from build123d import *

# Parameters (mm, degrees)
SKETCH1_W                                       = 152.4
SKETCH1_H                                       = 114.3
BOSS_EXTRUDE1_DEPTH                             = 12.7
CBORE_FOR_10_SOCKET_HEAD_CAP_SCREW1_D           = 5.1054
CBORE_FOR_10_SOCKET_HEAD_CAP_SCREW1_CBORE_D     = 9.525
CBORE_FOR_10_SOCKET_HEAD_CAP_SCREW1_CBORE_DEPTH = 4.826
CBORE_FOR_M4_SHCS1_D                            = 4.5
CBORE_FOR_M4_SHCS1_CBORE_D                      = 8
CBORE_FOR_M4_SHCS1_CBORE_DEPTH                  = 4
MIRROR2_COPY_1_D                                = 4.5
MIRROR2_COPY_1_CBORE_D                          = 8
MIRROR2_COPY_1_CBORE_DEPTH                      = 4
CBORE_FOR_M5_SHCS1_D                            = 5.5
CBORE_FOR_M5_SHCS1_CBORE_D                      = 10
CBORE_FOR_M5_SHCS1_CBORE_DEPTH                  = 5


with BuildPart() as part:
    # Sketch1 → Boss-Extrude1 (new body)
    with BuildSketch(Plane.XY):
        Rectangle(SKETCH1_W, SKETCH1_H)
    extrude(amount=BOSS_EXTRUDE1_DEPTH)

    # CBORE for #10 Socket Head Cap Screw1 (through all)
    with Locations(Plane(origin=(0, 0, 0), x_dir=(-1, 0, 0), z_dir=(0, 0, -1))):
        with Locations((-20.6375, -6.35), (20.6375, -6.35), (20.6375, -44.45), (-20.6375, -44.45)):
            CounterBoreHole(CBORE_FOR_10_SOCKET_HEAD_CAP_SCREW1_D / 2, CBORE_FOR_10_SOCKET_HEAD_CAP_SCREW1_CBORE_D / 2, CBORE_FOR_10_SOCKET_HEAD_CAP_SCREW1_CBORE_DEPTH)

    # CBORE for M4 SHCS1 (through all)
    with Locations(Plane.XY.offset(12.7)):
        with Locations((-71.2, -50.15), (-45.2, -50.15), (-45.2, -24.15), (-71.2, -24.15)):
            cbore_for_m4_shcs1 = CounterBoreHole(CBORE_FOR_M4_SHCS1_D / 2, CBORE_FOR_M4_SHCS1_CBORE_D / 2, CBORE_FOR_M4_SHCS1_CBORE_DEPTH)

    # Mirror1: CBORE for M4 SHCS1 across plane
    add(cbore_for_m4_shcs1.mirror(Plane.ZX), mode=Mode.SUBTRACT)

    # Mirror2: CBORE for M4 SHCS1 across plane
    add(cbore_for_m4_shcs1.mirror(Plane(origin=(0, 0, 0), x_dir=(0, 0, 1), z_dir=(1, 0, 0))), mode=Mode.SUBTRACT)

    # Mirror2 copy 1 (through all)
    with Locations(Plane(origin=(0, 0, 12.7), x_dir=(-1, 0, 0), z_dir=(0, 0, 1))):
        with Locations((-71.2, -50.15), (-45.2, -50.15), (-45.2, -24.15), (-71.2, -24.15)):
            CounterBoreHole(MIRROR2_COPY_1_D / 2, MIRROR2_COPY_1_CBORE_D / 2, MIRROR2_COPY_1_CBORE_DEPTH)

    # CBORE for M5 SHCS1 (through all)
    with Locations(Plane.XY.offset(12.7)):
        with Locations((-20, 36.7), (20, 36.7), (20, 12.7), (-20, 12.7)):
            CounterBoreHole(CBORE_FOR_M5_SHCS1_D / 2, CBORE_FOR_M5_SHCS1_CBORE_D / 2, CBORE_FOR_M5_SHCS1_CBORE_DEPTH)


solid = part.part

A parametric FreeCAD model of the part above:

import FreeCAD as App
import Part
import Sketcher

V = App.Vector
Q = App.Units.Quantity

doc = App.newDocument("Part")
params = doc.addObject("Spreadsheet::Sheet", "Params")
for row, (alias, value) in enumerate([
    ("sketch1_width", "6 in"),
    ("sketch1_height", "4.5 in"),
    ("pad1_length", "0.5 in"),
    ("sketch2_diameter", "0.201 in"),
    ("hole_diameter", "0.201 in"),
    ("hole_cbore_diameter", "0.375 in"),
    ("hole_cbore_depth", "0.19 in"),
    ("hole2_diameter", "4.5 mm"),
    ("hole2_cbore_diameter", "8 mm"),
    ("hole2_cbore_depth", "4 mm"),
    ("hole3_diameter", "4.5 mm"),
    ("hole3_cbore_diameter", "8 mm"),
    ("hole3_cbore_depth", "4 mm"),
    ("hole4_diameter", "5.5 mm"),
    ("hole4_cbore_diameter", "10 mm"),
    ("hole4_cbore_depth", "5 mm"),
], start=1):
    params.set(f"A{row}", alias)
    params.set(f"B{row}", "=" + value)
    params.setAlias(f"B{row}", alias)

body = doc.addObject("PartDesign::Body", "Body")

# Sketch on XY plane
sketch1 = body.newObject("Sketcher::SketchObject", "Sketch")
sketch1.AttachmentSupport = (doc.getObject("XY_Plane"), [""])
sketch1.MapMode = "FlatFace"
sketch1.addGeometry([
    Part.LineSegment(V(-76.2, 57.15, 0), V(-76.2, -57.15, 0)),
    Part.LineSegment(V(-76.2, -57.15, 0), V(76.2, -57.15, 0)),
    Part.LineSegment(V(76.2, -57.15, 0), V(76.2, 57.15, 0)),
    Part.LineSegment(V(76.2, 57.15, 0), V(-76.2, 57.15, 0)),
], False)
sketch1.addConstraint([
    Sketcher.Constraint("Coincident", 0, 2, 1, 1),
    Sketcher.Constraint("Coincident", 1, 2, 2, 1),
    Sketcher.Constraint("Coincident", 2, 2, 3, 1),
    Sketcher.Constraint("Coincident", 3, 2, 0, 1),
    Sketcher.Constraint("Vertical", 0),
    Sketcher.Constraint("Horizontal", 1),
    Sketcher.Constraint("Vertical", 2),
    Sketcher.Constraint("Horizontal", 3),
    Sketcher.Constraint("Symmetric", 0, 2, 2, 2, -1, 1),
    Sketcher.Constraint("DistanceX", 1, 1, 1, 2, Q("6 in")),
    Sketcher.Constraint("DistanceY", 0, 2, 0, 1, Q("4.5 in")),
])
sketch1.setExpression("Constraints[9]", "Params.sketch1_width")
sketch1.setExpression("Constraints[10]", "Params.sketch1_height")
pad1 = body.newObject("PartDesign::Pad", "Pad")
pad1.Profile = sketch1
pad1.setExpression("Length", "Params.pad1_length")

# Sketch on XY plane
sketch2 = body.newObject("Sketcher::SketchObject", "Sketch001")
sketch2.AttachmentSupport = (doc.getObject("XY_Plane"), [""])
sketch2.MapMode = "FlatFace"
sketch2.addGeometry([
    Part.Circle(V(20.6375, -6.35, 0), V(0, 0, 1), 2.5527),
    Part.Circle(V(-20.6375, -6.35, 0), V(0, 0, 1), 2.5527),
    Part.Circle(V(-20.6375, -44.45, 0), V(0, 0, 1), 2.5527),
    Part.Circle(V(20.6375, -44.45, 0), V(0, 0, 1), 2.5527),
], False)
sketch2.addConstraint([
    Sketcher.Constraint("Equal", 0, 1),
    Sketcher.Constraint("Equal", 1, 2),
    Sketcher.Constraint("Equal", 2, 3),
    Sketcher.Constraint("Symmetric", 0, 3, 1, 3, -2),
    Sketcher.Constraint("Symmetric", 2, 3, 3, 3, -2),
    Sketcher.Constraint("Vertical", 1, 3, 2, 3),
    Sketcher.Constraint("Diameter", 0, Q("0.201 in")),
    Sketcher.Constraint("DistanceY", 2, 3, 1, 3, Q("1.5 in")),
    Sketcher.Constraint("DistanceY", 0, 3, -1, 1, Q("0.25 in")),
    Sketcher.Constraint("DistanceX", -1, 1, 0, 3, Q("0.8125 in")),
])
sketch2.setExpression("Constraints[6]", "Params.sketch2_diameter")
doc.recompute()
hole = body.newObject("PartDesign::Hole", "Hole")
hole.Profile = sketch2
hole.ThreadType = "None"
hole.setExpression("Diameter", "Params.hole_diameter")
hole.DepthType = "ThroughAll"
hole.HoleCutType = "Counterbore"
hole.setExpression("HoleCutDiameter", "Params.hole_cbore_diameter")
hole.setExpression("HoleCutDepth", "Params.hole_cbore_depth")
hole.Reversed = True

# Sketch on XY plane
sketch3 = body.newObject("Sketcher::SketchObject", "Sketch002")
sketch3.AttachmentSupport = (doc.getObject("XY_Plane"), [""])
sketch3.MapMode = "FlatFace"
sketch3.AttachmentOffset = App.Placement(V(0, 0, 0.5 * 25.4), App.Rotation())
sketch3.addGeometry([
    Part.Circle(V(-71.2, -50.15, 0), V(0, 0, 1), 2.25),
    Part.Circle(V(-45.2, -50.15, 0), V(0, 0, 1), 2.25),
    Part.Circle(V(-45.2, -24.15, 0), V(0, 0, 1), 2.25),
    Part.Circle(V(-71.2, -24.15, 0), V(0, 0, 1), 2.25),
], False)
sketch3.addConstraint([
    Sketcher.Constraint("Equal", 0, 1),
    Sketcher.Constraint("Equal", 1, 2),
    Sketcher.Constraint("Equal", 2, 3),
    Sketcher.Constraint("Horizontal", 0, 3, 1, 3),
    Sketcher.Constraint("Horizontal", 2, 3, 3, 3),
    Sketcher.Constraint("Vertical", 1, 3, 2, 3),
    Sketcher.Constraint("Vertical", 0, 3, 3, 3),
    Sketcher.Constraint("Diameter", 0, Q("4.5 mm")),
    Sketcher.Constraint("DistanceX", 0, 3, -1, 1, Q("71.2 mm")),
    Sketcher.Constraint("DistanceY", 0, 3, -1, 1, Q("50.15 mm")),
    Sketcher.Constraint("DistanceX", 1, 3, -1, 1, Q("45.2 mm")),
    Sketcher.Constraint("DistanceY", 2, 3, -1, 1, Q("24.15 mm")),
])
doc.recompute()
hole2 = body.newObject("PartDesign::Hole", "Hole001")
hole2.Profile = sketch3
hole2.ThreadType = "None"
hole2.setExpression("Diameter", "Params.hole2_diameter")
hole2.DepthType = "ThroughAll"
hole2.HoleCutType = "Counterbore"
hole2.setExpression("HoleCutDiameter", "Params.hole2_cbore_diameter")
hole2.setExpression("HoleCutDepth", "Params.hole2_cbore_depth")
doc.recompute()

mirrored = body.newObject("PartDesign::Mirrored", "Mirrored")
mirrored.Originals = [hole2]
mirrored.MirrorPlane = (doc.getObject("XZ_Plane"), [""])
body.Tip = mirrored
doc.recompute()

mirrored2 = body.newObject("PartDesign::Mirrored", "Mirrored001")
mirrored2.Originals = [hole2]
mirrored2.MirrorPlane = (doc.getObject("YZ_Plane"), [""])
body.Tip = mirrored2

# Sketch on XY plane
sketch4 = body.newObject("Sketcher::SketchObject", "Sketch003")
sketch4.AttachmentSupport = (doc.getObject("XY_Plane"), [""])
sketch4.MapMode = "FlatFace"
sketch4.AttachmentOffset = App.Placement(V(0, 0, 0.5 * 25.4), App.Rotation())
sketch4.addGeometry([
    Part.Circle(V(71.2, 50.15, 0), V(0, 0, 1), 2.25),
    Part.Circle(V(45.2, 50.15, 0), V(0, 0, 1), 2.25),
    Part.Circle(V(45.2, 24.15, 0), V(0, 0, 1), 2.25),
    Part.Circle(V(71.2, 24.15, 0), V(0, 0, 1), 2.25),
], False)
sketch4.addConstraint([
    Sketcher.Constraint("Equal", 0, 1),
    Sketcher.Constraint("Equal", 1, 2),
    Sketcher.Constraint("Equal", 2, 3),
    Sketcher.Constraint("Horizontal", 0, 3, 1, 3),
    Sketcher.Constraint("Horizontal", 2, 3, 3, 3),
    Sketcher.Constraint("Vertical", 1, 3, 2, 3),
    Sketcher.Constraint("Vertical", 0, 3, 3, 3),
    Sketcher.Constraint("Diameter", 0, Q("4.5 mm")),
    Sketcher.Constraint("DistanceX", -1, 1, 0, 3, Q("71.2 mm")),
    Sketcher.Constraint("DistanceY", -1, 1, 0, 3, Q("50.15 mm")),
    Sketcher.Constraint("DistanceX", -1, 1, 1, 3, Q("45.2 mm")),
    Sketcher.Constraint("DistanceY", -1, 1, 2, 3, Q("24.15 mm")),
])
doc.recompute()
hole3 = body.newObject("PartDesign::Hole", "Hole002")
hole3.Profile = sketch4
hole3.ThreadType = "None"
hole3.setExpression("Diameter", "Params.hole3_diameter")
hole3.DepthType = "ThroughAll"
hole3.HoleCutType = "Counterbore"
hole3.setExpression("HoleCutDiameter", "Params.hole3_cbore_diameter")
hole3.setExpression("HoleCutDepth", "Params.hole3_cbore_depth")

# Sketch on XY plane
sketch5 = body.newObject("Sketcher::SketchObject", "Sketch004")
sketch5.AttachmentSupport = (doc.getObject("XY_Plane"), [""])
sketch5.MapMode = "FlatFace"
sketch5.AttachmentOffset = App.Placement(V(0, 0, 0.5 * 25.4), App.Rotation())
sketch5.addGeometry([
    Part.Circle(V(-20, 36.7, 0), V(0, 0, 1), 2.75),
    Part.Circle(V(20, 36.7, 0), V(0, 0, 1), 2.75),
    Part.Circle(V(20, 12.7, 0), V(0, 0, 1), 2.75),
    Part.Circle(V(-20, 12.7, 0), V(0, 0, 1), 2.75),
], False)
sketch5.addConstraint([
    Sketcher.Constraint("Equal", 0, 1),
    Sketcher.Constraint("Equal", 1, 2),
    Sketcher.Constraint("Equal", 2, 3),
    Sketcher.Constraint("Symmetric", 0, 3, 1, 3, -2),
    Sketcher.Constraint("Symmetric", 2, 3, 3, 3, -2),
    Sketcher.Constraint("Vertical", 1, 3, 2, 3),
    Sketcher.Constraint("DistanceY", -1, 1, 2, 3, Q("0.5 in")),
    Sketcher.Constraint("Diameter", 0, Q("5.5 mm")),
    Sketcher.Constraint("DistanceX", 0, 3, -1, 1, Q("20 mm")),
    Sketcher.Constraint("DistanceY", -1, 1, 0, 3, Q("36.7 mm")),
])
doc.recompute()
hole4 = body.newObject("PartDesign::Hole", "Hole003")
hole4.Profile = sketch5
hole4.ThreadType = "None"
hole4.setExpression("Diameter", "Params.hole4_diameter")
hole4.DepthType = "ThroughAll"
hole4.HoleCutType = "Counterbore"
hole4.setExpression("HoleCutDiameter", "Params.hole4_cbore_diameter")
hole4.setExpression("HoleCutDepth", "Params.hole4_cbore_depth")

doc.recompute()
